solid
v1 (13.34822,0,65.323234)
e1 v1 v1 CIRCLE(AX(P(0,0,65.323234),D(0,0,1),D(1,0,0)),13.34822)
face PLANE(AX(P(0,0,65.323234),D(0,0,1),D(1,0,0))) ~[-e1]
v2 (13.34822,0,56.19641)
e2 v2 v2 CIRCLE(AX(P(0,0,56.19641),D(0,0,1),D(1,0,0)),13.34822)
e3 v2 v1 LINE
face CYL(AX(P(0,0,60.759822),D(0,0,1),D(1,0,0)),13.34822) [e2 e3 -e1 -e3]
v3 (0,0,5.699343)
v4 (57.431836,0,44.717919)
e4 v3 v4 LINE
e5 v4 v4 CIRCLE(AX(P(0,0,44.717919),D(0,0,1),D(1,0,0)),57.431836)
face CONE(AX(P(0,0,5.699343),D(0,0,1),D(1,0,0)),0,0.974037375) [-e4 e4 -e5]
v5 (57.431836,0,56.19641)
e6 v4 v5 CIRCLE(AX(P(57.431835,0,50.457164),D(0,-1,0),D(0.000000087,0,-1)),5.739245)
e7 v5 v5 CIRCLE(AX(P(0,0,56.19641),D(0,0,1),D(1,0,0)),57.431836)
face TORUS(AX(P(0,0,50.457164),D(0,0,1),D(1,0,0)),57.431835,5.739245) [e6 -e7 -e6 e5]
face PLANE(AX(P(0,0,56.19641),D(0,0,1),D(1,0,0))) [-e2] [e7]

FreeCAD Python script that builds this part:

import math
import FreeCAD as App
import Part
import Sketcher

V = App.Vector

doc = App.newDocument("Part")
body = doc.addObject("PartDesign::Body", "Body")

# Sketch on XZ plane
sketch1 = body.newObject("Sketcher::SketchObject", "Sketch")
sketch1.AttachmentSupport = (doc.getObject("XZ_Plane"), [""])
sketch1.MapMode = "FlatFace"
sketch1.addGeometry(Part.LineSegment(V(0, 6, 0), V(57, 45, 0)), False)
sketch1.addGeometry(Part.ArcOfCircle(Part.Circle(V(57, 50, 0), V(0, 0, 1), 6), math.radians(-90), math.radians(90)), False)
sketch1.addGeometry(Part.LineSegment(V(57, 56, 0), V(13, 56, 0)), False)
sketch1.addGeometry(Part.LineSegment(V(13, 56, 0), V(13, 65, 0)), False)
sketch1.addGeometry(Part.LineSegment(V(13, 65, 0), V(0, 65, 0)), False)
sketch1.addGeometry(Part.LineSegment(V(0, 65, 0), V(0, 6, 0)), False)
sketch1.addConstraint(Sketcher.Constraint("Coincident", 0, 2, 1, 1))
sketch1.addConstraint(Sketcher.Constraint("Tangent", 1, 2, 2, 1))
sketch1.addConstraint(Sketcher.Constraint("Coincident", 2, 2, 3, 1))
sketch1.addConstraint(Sketcher.Constraint("Coincident", 3, 2, 4, 1))
sketch1.addConstraint(Sketcher.Constraint("Coincident", 4, 2, 5, 1))
sketch1.addConstraint(Sketcher.Constraint("Coincident", 5, 2, 0, 1))
sketch1.addConstraint(Sketcher.Constraint("Horizontal", 2))
sketch1.addConstraint(Sketcher.Constraint("Vertical", 3))
sketch1.addConstraint(Sketcher.Constraint("Horizontal", 4))
sketch1.addConstraint(Sketcher.Constraint("Vertical", 5))
sketch1.addConstraint(Sketcher.Constraint("PointOnObject", 4, 2, -2))
sketch1.addConstraint(Sketcher.Constraint("Vertical", 1, 3, 0, 2))
sketch1.addConstraint(Sketcher.Constraint("Radius", 1, 5.739245))
sketch1.addConstraint(Sketcher.Constraint("DistanceX", 4, 2, 4, 1, 13.34822))
sketch1.addConstraint(Sketcher.Constraint("DistanceY", 5, 2, 5, 1, 59.623891))
sketch1.addConstraint(Sketcher.Constraint("Distance", 0, 69.43245))
sketch1.addConstraint(Sketcher.Constraint("DistanceX", 2, 2, 2, 1, 44.083616))
sketch1.addConstraint(Sketcher.Constraint("DistanceY", -1, 1, 0, 2, 44.717919))
revolution = body.newObject("PartDesign::Revolution", "Revolution")
revolution.Profile = sketch1
revolution.ReferenceAxis = (sketch1, ["V_Axis"])
revolution.Angle = 360

doc.recompute()
